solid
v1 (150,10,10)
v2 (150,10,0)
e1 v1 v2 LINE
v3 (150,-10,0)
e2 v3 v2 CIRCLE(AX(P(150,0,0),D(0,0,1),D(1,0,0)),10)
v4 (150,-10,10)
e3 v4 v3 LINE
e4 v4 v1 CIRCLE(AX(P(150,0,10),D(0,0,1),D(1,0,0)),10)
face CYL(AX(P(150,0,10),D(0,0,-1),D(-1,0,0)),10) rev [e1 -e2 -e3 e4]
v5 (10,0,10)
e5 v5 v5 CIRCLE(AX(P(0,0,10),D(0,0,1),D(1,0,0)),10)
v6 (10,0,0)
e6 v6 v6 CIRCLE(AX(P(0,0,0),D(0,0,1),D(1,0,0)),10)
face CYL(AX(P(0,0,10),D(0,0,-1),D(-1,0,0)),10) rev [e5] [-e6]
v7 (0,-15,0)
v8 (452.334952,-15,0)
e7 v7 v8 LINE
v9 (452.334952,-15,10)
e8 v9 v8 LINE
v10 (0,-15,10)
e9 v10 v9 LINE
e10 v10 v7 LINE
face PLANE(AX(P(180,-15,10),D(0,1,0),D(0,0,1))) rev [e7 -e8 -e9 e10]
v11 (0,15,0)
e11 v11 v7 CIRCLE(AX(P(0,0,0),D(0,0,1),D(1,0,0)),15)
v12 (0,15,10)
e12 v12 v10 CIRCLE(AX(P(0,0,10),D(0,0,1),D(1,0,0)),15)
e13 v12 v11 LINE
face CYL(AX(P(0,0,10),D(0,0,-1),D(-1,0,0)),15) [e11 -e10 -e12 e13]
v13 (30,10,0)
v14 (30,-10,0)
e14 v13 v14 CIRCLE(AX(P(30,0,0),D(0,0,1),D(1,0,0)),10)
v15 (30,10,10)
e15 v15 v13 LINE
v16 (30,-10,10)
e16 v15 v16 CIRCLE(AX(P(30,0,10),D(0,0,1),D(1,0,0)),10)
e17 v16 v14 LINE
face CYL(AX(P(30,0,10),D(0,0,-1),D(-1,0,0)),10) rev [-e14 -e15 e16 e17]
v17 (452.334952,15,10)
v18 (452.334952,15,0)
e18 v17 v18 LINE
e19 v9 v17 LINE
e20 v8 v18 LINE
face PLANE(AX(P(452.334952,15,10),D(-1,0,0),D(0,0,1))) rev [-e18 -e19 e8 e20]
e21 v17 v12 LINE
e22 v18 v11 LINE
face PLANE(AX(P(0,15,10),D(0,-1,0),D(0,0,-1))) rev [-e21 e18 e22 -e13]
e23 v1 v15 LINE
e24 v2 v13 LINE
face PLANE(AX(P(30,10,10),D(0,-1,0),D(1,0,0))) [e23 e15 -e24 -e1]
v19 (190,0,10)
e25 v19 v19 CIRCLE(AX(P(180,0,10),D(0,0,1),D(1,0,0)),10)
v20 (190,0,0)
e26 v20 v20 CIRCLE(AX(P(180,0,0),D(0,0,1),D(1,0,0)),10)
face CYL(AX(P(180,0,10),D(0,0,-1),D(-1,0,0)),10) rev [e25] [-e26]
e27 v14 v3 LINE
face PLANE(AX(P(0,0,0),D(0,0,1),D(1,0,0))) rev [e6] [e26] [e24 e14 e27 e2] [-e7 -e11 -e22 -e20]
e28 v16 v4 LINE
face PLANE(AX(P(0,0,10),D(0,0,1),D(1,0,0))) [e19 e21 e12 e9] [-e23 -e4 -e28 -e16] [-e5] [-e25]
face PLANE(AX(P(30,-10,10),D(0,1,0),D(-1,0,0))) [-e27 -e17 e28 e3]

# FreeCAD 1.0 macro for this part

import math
import FreeCAD as App
import Part
import Sketcher
from FreeCAD import Vector

doc = App.newDocument("Part")
body = doc.addObject("PartDesign::Body", "Body")

sketch1 = body.newObject("Sketcher::SketchObject", "Sketch")
sketch1.AttachmentSupport = (doc.getObject("XY_Plane"), [""])
sketch1.MapMode = "FlatFace"
sketch1.addGeometry(Part.LineSegment(Vector(452, 15, 0), Vector(0, 15, 0)), False)
sketch1.addGeometry(Part.ArcOfCircle(Part.Circle(Vector(0, 0, 0), Vector(0, 0, 1), 15), math.radians(90), math.radians(270)), False)
sketch1.addGeometry(Part.LineSegment(Vector(0, -15, 0), Vector(452, -15, 0)), False)
sketch1.addGeometry(Part.LineSegment(Vector(452, -15, 0), Vector(452, 15, 0)), False)
sketch1.addGeometry(Part.Circle(Vector(180, 0, 0), Vector(0, 0, 1), 10), False)
sketch1.addGeometry(Part.LineSegment(Vector(30, 10, 0), Vector(150, 10, 0)), False)
sketch1.addGeometry(Part.ArcOfCircle(Part.Circle(Vector(150, 0, 0), Vector(0, 0, 1), 10), math.radians(-90), math.radians(90)), False)
sketch1.addGeometry(Part.LineSegment(Vector(150, -10, 0), Vector(30, -10, 0)), False)
sketch1.addGeometry(Part.ArcOfCircle(Part.Circle(Vector(30, 0, 0), Vector(0, 0, 1), 10), math.radians(90), math.radians(270)), False)
sketch1.addGeometry(Part.Circle(Vector(0, 0, 0), Vector(0, 0, 1), 10), False)
sketch1.addConstraint(Sketcher.Constraint("Tangent", 0, 2, 1, 1))
sketch1.addConstraint(Sketcher.Constraint("Tangent", 1, 2, 2, 1))
sketch1.addConstraint(Sketcher.Constraint("Coincident", 2, 2, 3, 1))
sketch1.addConstraint(Sketcher.Constraint("Coincident", 3, 2, 0, 1))
sketch1.addConstraint(Sketcher.Constraint("Tangent", 5, 2, 6, 2))
sketch1.addConstraint(Sketcher.Constraint("Tangent", 6, 1, 7, 1))
sketch1.addConstraint(Sketcher.Constraint("Tangent", 7, 2, 8, 2))
sketch1.addConstraint(Sketcher.Constraint("Tangent", 8, 1, 5, 1))
sketch1.addConstraint(Sketcher.Constraint("Horizontal", 0))
sketch1.addConstraint(Sketcher.Constraint("Horizontal", 2))
sketch1.addConstraint(Sketcher.Constraint("Vertical", 3))
sketch1.addConstraint(Sketcher.Constraint("Horizontal", 5))
sketch1.addConstraint(Sketcher.Constraint("Horizontal", 7))
sketch1.addConstraint(Sketcher.Constraint("Coincident", 1, 3, -1, 1))
sketch1.addConstraint(Sketcher.Constraint("Coincident", 9, 3, -1, 1))
sketch1.addConstraint(Sketcher.Constraint("Equal", 4, 6))
sketch1.addConstraint(Sketcher.Constraint("Equal", 8, 9))
sketch1.addConstraint(Sketcher.Constraint("PointOnObject", 4, 3, -1))
sketch1.addConstraint(Sketcher.Constraint("PointOnObject", 6, 3, -1))
sketch1.addConstraint(Sketcher.Constraint("Diameter", 4, 20.0))
sketch1.addConstraint(Sketcher.Constraint("Radius", 1, 15.0))
sketch1.addConstraint(Sketcher.Constraint("DistanceX", 5, 1, 5, 2, 120.0))
sketch1.addConstraint(Sketcher.Constraint("DistanceX", -1, 1, 4, 3, 180.0))
sketch1.addConstraint(Sketcher.Constraint("DistanceX", -1, 1, 6, 3, 150.0))
sketch1.addConstraint(Sketcher.Constraint("DistanceX", 0, 2, 0, 1, 452.334952))
pad1 = body.newObject("PartDesign::Pad", "Pad")
pad1.Profile = sketch1
pad1.Length = 10

doc.recompute()
